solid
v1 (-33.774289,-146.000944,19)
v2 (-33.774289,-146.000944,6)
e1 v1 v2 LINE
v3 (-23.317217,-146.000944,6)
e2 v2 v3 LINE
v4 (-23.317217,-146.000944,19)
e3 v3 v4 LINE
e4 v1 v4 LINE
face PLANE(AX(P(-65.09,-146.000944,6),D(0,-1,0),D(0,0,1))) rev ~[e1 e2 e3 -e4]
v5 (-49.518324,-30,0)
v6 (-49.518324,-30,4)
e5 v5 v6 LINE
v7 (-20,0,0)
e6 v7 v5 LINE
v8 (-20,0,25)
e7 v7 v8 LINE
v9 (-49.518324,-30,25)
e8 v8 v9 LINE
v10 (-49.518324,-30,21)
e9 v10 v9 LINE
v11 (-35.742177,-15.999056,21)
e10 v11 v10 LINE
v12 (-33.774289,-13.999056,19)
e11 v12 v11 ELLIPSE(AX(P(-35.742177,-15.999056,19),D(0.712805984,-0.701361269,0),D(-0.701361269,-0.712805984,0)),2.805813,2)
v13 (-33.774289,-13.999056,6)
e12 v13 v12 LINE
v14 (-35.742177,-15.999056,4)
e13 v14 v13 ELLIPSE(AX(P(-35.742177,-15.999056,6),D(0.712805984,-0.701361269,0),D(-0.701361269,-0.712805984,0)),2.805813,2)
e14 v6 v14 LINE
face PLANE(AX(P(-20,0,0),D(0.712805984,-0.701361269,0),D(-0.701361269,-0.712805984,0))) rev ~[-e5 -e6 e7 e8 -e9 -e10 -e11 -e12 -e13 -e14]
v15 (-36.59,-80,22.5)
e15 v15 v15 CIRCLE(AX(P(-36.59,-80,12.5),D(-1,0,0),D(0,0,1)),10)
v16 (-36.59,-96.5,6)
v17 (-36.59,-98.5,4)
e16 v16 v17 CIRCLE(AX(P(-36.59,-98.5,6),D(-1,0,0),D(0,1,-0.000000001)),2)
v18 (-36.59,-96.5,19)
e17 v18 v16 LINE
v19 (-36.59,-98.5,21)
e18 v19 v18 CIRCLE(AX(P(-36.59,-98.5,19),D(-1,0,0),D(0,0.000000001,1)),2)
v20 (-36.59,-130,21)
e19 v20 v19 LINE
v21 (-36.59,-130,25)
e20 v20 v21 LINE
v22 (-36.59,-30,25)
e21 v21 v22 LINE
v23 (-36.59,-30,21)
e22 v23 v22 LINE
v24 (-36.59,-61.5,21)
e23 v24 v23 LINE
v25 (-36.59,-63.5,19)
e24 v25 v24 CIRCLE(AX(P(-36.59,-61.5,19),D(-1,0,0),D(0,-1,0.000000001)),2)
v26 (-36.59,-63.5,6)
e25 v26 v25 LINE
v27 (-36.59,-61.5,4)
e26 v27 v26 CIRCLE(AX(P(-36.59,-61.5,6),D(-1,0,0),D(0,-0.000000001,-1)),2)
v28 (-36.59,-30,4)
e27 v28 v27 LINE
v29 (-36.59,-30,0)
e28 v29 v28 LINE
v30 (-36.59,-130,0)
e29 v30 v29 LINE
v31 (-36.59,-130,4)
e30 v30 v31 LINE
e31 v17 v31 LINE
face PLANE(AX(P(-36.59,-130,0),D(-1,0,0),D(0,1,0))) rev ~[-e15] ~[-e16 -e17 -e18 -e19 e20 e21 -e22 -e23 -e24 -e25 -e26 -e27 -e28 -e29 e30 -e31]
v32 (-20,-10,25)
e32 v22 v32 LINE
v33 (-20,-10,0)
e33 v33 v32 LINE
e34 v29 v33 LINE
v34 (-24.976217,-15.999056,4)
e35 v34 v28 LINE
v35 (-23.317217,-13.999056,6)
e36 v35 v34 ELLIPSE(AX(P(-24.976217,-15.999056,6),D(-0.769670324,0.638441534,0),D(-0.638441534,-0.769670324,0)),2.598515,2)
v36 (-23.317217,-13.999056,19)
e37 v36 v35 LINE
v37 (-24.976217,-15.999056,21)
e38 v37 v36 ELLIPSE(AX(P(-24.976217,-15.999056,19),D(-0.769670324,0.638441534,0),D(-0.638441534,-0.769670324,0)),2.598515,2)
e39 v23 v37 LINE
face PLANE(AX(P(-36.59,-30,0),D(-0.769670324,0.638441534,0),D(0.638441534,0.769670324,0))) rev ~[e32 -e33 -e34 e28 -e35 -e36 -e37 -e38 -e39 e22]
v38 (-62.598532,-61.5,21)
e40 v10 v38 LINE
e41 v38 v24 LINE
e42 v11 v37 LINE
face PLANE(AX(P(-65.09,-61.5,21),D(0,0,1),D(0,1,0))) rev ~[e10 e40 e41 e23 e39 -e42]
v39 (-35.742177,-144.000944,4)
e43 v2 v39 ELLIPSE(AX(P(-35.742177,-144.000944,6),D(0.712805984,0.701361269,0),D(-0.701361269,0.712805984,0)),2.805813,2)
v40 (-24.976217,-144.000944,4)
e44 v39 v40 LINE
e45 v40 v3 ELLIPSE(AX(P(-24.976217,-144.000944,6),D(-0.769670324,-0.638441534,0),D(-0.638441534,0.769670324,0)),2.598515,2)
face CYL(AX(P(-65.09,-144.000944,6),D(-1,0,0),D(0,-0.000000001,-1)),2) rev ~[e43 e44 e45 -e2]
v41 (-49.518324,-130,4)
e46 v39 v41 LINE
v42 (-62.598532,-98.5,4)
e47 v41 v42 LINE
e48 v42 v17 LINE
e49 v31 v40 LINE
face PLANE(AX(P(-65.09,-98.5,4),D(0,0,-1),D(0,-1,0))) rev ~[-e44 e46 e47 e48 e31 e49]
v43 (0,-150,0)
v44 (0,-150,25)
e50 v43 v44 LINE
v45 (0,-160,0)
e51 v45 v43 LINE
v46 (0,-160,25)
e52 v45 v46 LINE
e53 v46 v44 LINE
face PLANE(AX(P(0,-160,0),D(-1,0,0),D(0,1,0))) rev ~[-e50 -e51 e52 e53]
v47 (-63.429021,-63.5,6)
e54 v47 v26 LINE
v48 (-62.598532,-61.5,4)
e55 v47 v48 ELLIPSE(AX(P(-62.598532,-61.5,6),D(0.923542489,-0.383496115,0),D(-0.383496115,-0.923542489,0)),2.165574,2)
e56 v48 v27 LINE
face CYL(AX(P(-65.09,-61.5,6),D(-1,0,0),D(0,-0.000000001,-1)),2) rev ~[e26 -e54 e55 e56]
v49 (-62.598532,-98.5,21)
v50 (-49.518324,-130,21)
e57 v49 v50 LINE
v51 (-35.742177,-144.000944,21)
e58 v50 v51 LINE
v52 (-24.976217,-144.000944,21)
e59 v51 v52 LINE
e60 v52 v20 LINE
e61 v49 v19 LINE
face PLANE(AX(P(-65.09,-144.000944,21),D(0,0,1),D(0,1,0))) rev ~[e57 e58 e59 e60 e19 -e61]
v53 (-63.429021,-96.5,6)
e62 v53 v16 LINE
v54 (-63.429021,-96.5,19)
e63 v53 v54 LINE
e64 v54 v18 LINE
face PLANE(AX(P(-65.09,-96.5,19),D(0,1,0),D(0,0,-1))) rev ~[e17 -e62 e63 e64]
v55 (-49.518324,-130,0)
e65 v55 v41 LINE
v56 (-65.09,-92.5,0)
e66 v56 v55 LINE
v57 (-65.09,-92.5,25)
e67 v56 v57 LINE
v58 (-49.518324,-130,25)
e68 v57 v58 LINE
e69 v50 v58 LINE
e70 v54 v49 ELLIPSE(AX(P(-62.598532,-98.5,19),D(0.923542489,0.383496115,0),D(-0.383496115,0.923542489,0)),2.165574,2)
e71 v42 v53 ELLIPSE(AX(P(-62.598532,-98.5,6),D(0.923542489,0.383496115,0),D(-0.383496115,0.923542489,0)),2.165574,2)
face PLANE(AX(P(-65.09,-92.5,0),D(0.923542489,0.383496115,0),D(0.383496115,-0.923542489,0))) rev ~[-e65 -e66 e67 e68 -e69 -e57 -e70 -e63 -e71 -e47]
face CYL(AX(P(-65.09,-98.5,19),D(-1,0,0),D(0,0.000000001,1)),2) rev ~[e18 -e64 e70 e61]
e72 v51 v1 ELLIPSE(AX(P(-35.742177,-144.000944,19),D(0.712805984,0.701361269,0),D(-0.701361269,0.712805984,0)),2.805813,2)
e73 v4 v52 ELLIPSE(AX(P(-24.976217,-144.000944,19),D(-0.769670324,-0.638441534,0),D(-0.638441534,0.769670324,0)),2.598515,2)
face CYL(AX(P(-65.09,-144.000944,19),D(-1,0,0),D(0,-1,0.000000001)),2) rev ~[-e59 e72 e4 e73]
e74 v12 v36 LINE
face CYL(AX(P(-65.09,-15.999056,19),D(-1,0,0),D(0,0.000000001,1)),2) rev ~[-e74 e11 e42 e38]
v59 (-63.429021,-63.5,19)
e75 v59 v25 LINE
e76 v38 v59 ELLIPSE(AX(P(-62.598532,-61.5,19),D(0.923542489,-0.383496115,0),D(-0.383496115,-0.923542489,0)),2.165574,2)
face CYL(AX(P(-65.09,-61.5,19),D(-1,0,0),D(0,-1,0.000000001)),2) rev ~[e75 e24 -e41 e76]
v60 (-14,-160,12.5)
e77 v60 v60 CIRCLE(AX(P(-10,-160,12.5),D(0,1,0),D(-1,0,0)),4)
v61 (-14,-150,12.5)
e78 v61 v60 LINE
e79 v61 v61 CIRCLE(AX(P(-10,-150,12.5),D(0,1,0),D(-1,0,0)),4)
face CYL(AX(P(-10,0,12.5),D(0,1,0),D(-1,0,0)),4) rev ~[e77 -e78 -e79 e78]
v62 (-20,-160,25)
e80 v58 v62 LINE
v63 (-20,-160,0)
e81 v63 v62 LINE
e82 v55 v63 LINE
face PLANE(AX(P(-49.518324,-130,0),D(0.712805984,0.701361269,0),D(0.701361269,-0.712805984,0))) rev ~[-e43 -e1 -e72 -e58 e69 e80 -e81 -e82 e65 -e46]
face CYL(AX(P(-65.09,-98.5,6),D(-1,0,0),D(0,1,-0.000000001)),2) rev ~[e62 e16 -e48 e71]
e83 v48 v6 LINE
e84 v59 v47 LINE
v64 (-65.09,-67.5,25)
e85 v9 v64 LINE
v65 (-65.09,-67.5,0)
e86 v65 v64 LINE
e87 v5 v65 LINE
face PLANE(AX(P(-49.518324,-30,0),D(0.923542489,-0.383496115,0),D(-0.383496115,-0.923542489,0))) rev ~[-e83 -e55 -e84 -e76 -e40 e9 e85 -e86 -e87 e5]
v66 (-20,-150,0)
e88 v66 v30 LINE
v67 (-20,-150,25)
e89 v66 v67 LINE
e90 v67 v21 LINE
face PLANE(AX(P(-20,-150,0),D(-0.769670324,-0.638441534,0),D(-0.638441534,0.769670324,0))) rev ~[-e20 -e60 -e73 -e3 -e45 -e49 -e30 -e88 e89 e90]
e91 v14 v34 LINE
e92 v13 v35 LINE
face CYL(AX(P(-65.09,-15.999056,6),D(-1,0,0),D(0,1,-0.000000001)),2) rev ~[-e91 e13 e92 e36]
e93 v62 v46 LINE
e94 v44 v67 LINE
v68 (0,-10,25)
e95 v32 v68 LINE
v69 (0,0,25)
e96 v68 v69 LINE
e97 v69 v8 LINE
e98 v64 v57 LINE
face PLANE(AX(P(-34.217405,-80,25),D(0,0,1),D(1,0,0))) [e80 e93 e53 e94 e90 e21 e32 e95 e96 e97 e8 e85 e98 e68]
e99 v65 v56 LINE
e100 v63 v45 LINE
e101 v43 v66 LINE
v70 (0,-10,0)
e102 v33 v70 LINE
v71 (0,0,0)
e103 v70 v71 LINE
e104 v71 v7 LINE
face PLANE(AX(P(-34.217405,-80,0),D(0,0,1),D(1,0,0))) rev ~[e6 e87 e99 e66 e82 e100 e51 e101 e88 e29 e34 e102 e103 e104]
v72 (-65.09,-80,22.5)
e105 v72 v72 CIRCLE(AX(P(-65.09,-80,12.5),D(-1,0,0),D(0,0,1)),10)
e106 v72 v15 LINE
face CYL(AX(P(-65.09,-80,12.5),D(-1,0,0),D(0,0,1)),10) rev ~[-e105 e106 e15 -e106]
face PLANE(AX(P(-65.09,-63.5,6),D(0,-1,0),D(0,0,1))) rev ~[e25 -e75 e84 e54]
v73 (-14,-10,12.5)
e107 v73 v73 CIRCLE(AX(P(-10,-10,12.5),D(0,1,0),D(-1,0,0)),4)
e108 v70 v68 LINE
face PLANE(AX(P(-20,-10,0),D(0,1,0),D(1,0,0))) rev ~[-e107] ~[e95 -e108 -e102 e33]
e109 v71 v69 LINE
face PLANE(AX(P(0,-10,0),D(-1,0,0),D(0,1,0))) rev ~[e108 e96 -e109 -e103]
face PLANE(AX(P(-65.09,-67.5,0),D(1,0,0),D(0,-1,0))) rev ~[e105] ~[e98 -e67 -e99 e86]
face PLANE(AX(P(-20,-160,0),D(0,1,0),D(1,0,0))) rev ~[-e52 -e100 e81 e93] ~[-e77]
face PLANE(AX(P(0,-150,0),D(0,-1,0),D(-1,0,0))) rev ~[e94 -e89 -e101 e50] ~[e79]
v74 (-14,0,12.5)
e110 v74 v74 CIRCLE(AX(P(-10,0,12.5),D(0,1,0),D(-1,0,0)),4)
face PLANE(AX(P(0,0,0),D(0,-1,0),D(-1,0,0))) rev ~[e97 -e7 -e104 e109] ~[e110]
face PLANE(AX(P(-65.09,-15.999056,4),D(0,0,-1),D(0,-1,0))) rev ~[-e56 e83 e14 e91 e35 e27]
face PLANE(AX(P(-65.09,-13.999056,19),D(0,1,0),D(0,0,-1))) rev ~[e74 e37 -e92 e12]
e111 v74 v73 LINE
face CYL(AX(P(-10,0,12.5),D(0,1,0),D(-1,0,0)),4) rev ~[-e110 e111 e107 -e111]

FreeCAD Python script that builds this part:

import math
import FreeCAD as App
import Part
import Sketcher
Q = App.Units.Quantity


def add_polygon(sketch, points):
    """Adds a closed chain of lines whose ends are joined by coincident constraints."""
    first, n = sketch.GeometryCount, len(points)
    for a, b in zip(points, points[1:] + points[:1]):
        sketch.addGeometry(Part.LineSegment(App.Vector(*a, 0), App.Vector(*b, 0)), False)
    for i in range(n):
        sketch.addConstraint(Sketcher.Constraint("Coincident", first + i, 2, first + (i + 1) % n, 1))

doc = App.newDocument("Part")
body = doc.addObject("PartDesign::Body", "Body")

# Sketch on XY plane
sketch1 = body.newObject("Sketcher::SketchObject", "Sketch")
sketch1.AttachmentSupport = (doc.getObject("XY_Plane"), [""])
sketch1.MapMode = "FlatFace"
add_polygon(sketch1, [(0, 0), (-20, 0), (-50, -30), (-65, -68), (-65, -92), (-50, -130), (-20, -160), (0, -160), (0, -150), (-20, -150), (-37, -130), (-37, -30), (-20, -10), (0, -10)])  # lines 0-13
sketch1.addConstraint(Sketcher.Constraint("Horizontal", 0))
sketch1.addConstraint(Sketcher.Constraint("Vertical", 3))
sketch1.addConstraint(Sketcher.Constraint("Horizontal", 6))
sketch1.addConstraint(Sketcher.Constraint("Vertical", 7))
sketch1.addConstraint(Sketcher.Constraint("Horizontal", 8))
sketch1.addConstraint(Sketcher.Constraint("Vertical", 10))
sketch1.addConstraint(Sketcher.Constraint("Horizontal", 12))
sketch1.addConstraint(Sketcher.Constraint("Vertical", 13))
sketch1.addConstraint(Sketcher.Constraint("Coincident", 13, 2, -1, 1))
sketch1.addConstraint(Sketcher.Constraint("PointOnObject", 6, 2, -2))
sketch1.addConstraint(Sketcher.Constraint("Horizontal", 4, 2, 9, 2))
sketch1.addConstraint(Sketcher.Constraint("Horizontal", 1, 2, 10, 2))
sketch1.addConstraint(Sketcher.Constraint("Vertical", 1, 2, 4, 2))
sketch1.addConstraint(Sketcher.Constraint("Vertical", 0, 2, 5, 2))
sketch1.addConstraint(Sketcher.Constraint("Vertical", 5, 2, 8, 2))
sketch1.addConstraint(Sketcher.Constraint("Vertical", 8, 2, 11, 2))
sketch1.addConstraint(Sketcher.Constraint("Equal", 7, 13))
sketch1.addConstraint(Sketcher.Constraint("Equal", 2, 4))
sketch1.addConstraint(Sketcher.Constraint("Equal", 1, 5))
sketch1.addConstraint(Sketcher.Constraint("DistanceX", 0, 2, 0, 1, Q("20 mm")))
sketch1.addConstraint(Sketcher.Constraint("DistanceY", 3, 2, 3, 1, Q("25 mm")))
sketch1.addConstraint(Sketcher.Constraint("DistanceY", 7, 1, 7, 2, Q("10 mm")))
sketch1.addConstraint(Sketcher.Constraint("DistanceY", 10, 1, 10, 2, Q("100 mm")))
sketch1.addConstraint(Sketcher.Constraint("DistanceY", 1, 2, -1, 1, Q("30 mm")))
sketch1.addConstraint(Sketcher.Constraint("DistanceX", 3, 2, 9, 2, Q("28.5 mm")))
sketch1.addConstraint(Sketcher.Constraint("DistanceX", 2, 2, -1, 1, Q("65.09 mm")))
sketch1.addConstraint(Sketcher.Constraint("Distance", 1, Q("42.087189 mm")))
pad1 = body.newObject("PartDesign::Pad", "Pad")
pad1.Profile = sketch1
pad1.Length = 25

# Sketch on YZ plane
sketch2 = body.newObject("Sketcher::SketchObject", "Sketch001")
sketch2.AttachmentSupport = (doc.getObject("YZ_Plane"), [""])
sketch2.MapMode = "FlatFace"
sketch2.AttachmentOffset = App.Placement(App.Vector(0, 0, -65.09), App.Rotation())
sketch2.addGeometry(Part.Circle(App.Vector(-80, 12.5, 0), App.Vector(0, 0, 1), 10), False)
sketch2.addGeometry(Part.LineSegment(App.Vector(-63.5, 6, 0), App.Vector(-63.5, 19, 0)), False)
sketch2.addGeometry(Part.ArcOfCircle(Part.Circle(App.Vector(-61.5, 19, 0), App.Vector(0, 0, 1), 2), math.radians(90), math.radians(180)), False)
sketch2.addGeometry(Part.LineSegment(App.Vector(-61.5, 21, 0), App.Vector(-16, 21, 0)), False)
sketch2.addGeometry(Part.ArcOfCircle(Part.Circle(App.Vector(-16, 19, 0), App.Vector(0, 0, 1), 2), math.radians(0), math.radians(90)), False)
sketch2.addGeometry(Part.LineSegment(App.Vector(-14, 19, 0), App.Vector(-14, 6, 0)), False)
sketch2.addGeometry(Part.ArcOfCircle(Part.Circle(App.Vector(-16, 6, 0), App.Vector(0, 0, 1), 2), math.radians(-90), math.radians(0)), False)
sketch2.addGeometry(Part.LineSegment(App.Vector(-16, 4, 0), App.Vector(-61.5, 4, 0)), False)
sketch2.addGeometry(Part.ArcOfCircle(Part.Circle(App.Vector(-61.5, 6, 0), App.Vector(0, 0, 1), 2), math.radians(-180), math.radians(-90)), False)
sketch2.addGeometry(Part.LineSegment(App.Vector(-146, 6, 0), App.Vector(-146, 19, 0)), False)
sketch2.addGeometry(Part.ArcOfCircle(Part.Circle(App.Vector(-144, 19, 0), App.Vector(0, 0, 1), 2), math.radians(90), math.radians(180)), False)
sketch2.addGeometry(Part.LineSegment(App.Vector(-144, 21, 0), App.Vector(-98.5, 21, 0)), False)
sketch2.addGeometry(Part.ArcOfCircle(Part.Circle(App.Vector(-98.5, 19, 0), App.Vector(0, 0, 1), 2), math.radians(0), math.radians(90)), False)
sketch2.addGeometry(Part.LineSegment(App.Vector(-96.5, 19, 0), App.Vector(-96.5, 6, 0)), False)
sketch2.addGeometry(Part.ArcOfCircle(Part.Circle(App.Vector(-98.5, 6, 0), App.Vector(0, 0, 1), 2), math.radians(-90), math.radians(0)), False)
sketch2.addGeometry(Part.LineSegment(App.Vector(-98.5, 4, 0), App.Vector(-144, 4, 0)), False)
sketch2.addGeometry(Part.ArcOfCircle(Part.Circle(App.Vector(-144, 6, 0), App.Vector(0, 0, 1), 2), math.radians(-180), math.radians(-90)), False)
sketch2.addConstraint(Sketcher.Constraint("Tangent", 1, 2, 2, 2))
sketch2.addConstraint(Sketcher.Constraint("Tangent", 2, 1, 3, 1))
sketch2.addConstraint(Sketcher.Constraint("Tangent", 3, 2, 4, 2))
sketch2.addConstraint(Sketcher.Constraint("Tangent", 4, 1, 5, 1))
sketch2.addConstraint(Sketcher.Constraint("Tangent", 5, 2, 6, 2))
sketch2.addConstraint(Sketcher.Constraint("Tangent", 6, 1, 7, 1))
sketch2.addConstraint(Sketcher.Constraint("Tangent", 7, 2, 8, 2))
sketch2.addConstraint(Sketcher.Constraint("Tangent", 8, 1, 1, 1))
sketch2.addConstraint(Sketcher.Constraint("Tangent", 9, 2, 10, 2))
sketch2.addConstraint(Sketcher.Constraint("Tangent", 10, 1, 11, 1))
sketch2.addConstraint(Sketcher.Constraint("Tangent", 11, 2, 12, 2))
sketch2.addConstraint(Sketcher.Constraint("Tangent", 12, 1, 13, 1))
sketch2.addConstraint(Sketcher.Constraint("Tangent", 13, 2, 14, 2))
sketch2.addConstraint(Sketcher.Constraint("Tangent", 14, 1, 15, 1))
sketch2.addConstraint(Sketcher.Constraint("Tangent", 15, 2, 16, 2))
sketch2.addConstraint(Sketcher.Constraint("Tangent", 16, 1, 9, 1))
sketch2.addConstraint(Sketcher.Constraint("Vertical", 1))
sketch2.addConstraint(Sketcher.Constraint("Horizontal", 3))
sketch2.addConstraint(Sketcher.Constraint("Vertical", 5))
sketch2.addConstraint(Sketcher.Constraint("Horizontal", 7))
sketch2.addConstraint(Sketcher.Constraint("Vertical", 9))
sketch2.addConstraint(Sketcher.Constraint("Horizontal", 11))
sketch2.addConstraint(Sketcher.Constraint("Vertical", 13))
sketch2.addConstraint(Sketcher.Constraint("Horizontal", 15))
sketch2.addConstraint(Sketcher.Constraint("Equal", 2, 4))
sketch2.addConstraint(Sketcher.Constraint("Equal", 4, 6))
sketch2.addConstraint(Sketcher.Constraint("Equal", 6, 8))
sketch2.addConstraint(Sketcher.Constraint("Equal", 8, 10))
sketch2.addConstraint(Sketcher.Constraint("Equal", 10, 12))
sketch2.addConstraint(Sketcher.Constraint("Equal", 12, 14))
sketch2.addConstraint(Sketcher.Constraint("Equal", 14, 16))
sketch2.addConstraint(Sketcher.Constraint("Horizontal", 4, 3, 10, 3))
sketch2.addConstraint(Sketcher.Constraint("Horizontal", 8, 3, 14, 3))
sketch2.addConstraint(Sketcher.Constraint("Equal", 7, 11))
sketch2.addConstraint(Sketcher.Constraint("Diameter", 0, Q("20 mm")))
sketch2.addConstraint(Sketcher.Constraint("Radius", 2, Q("2 mm")))
sketch2.addConstraint(Sketcher.Constraint("DistanceY", 1, 1, 1, 2, Q("13 mm")))
sketch2.addConstraint(Sketcher.Constraint("DistanceX", 0, 3, -1, 1, Q("80 mm")))
sketch2.addConstraint(Sketcher.Constraint("DistanceY", -1, 1, 2, 3, Q("19 mm")))
sketch2.addConstraint(Sketcher.Constraint("DistanceX", 12, 3, 2, 3, Q("37 mm")))
sketch2.addConstraint(Sketcher.Constraint("DistanceY", -1, 1, 0, 3, Q("12.5 mm")))
sketch2.addConstraint(Sketcher.Constraint("DistanceX", 2, 3, -1, 1, Q("61.5 mm")))
sketch2.addConstraint(Sketcher.Constraint("DistanceX", 3, 1, 3, 2, Q("45.500944 mm")))
pocket1 = body.newObject("PartDesign::Pocket", "Pocket")
pocket1.Profile = sketch2
pocket1.Type = "ThroughAll"
pocket1.Reversed = True

# Sketch on XZ plane
sketch3 = body.newObject("Sketcher::SketchObject", "Sketch002")
sketch3.AttachmentSupport = (doc.getObject("XZ_Plane"), [""])
sketch3.MapMode = "FlatFace"
sketch3.addGeometry(Part.Circle(App.Vector(-10, 12.5, 0), App.Vector(0, 0, 1), 4), False)
sketch3.addConstraint(Sketcher.Constraint("Diameter", 0, Q("8 mm")))
sketch3.addConstraint(Sketcher.Constraint("DistanceX", 0, 3, -1, 1, Q("10 mm")))
sketch3.addConstraint(Sketcher.Constraint("DistanceY", -1, 1, 0, 3, Q("12.5 mm")))
pocket2 = body.newObject("PartDesign::Pocket", "Pocket001")
pocket2.Profile = sketch3
pocket2.Type = "ThroughAll"
pocket2.Reversed = True

doc.recompute()
